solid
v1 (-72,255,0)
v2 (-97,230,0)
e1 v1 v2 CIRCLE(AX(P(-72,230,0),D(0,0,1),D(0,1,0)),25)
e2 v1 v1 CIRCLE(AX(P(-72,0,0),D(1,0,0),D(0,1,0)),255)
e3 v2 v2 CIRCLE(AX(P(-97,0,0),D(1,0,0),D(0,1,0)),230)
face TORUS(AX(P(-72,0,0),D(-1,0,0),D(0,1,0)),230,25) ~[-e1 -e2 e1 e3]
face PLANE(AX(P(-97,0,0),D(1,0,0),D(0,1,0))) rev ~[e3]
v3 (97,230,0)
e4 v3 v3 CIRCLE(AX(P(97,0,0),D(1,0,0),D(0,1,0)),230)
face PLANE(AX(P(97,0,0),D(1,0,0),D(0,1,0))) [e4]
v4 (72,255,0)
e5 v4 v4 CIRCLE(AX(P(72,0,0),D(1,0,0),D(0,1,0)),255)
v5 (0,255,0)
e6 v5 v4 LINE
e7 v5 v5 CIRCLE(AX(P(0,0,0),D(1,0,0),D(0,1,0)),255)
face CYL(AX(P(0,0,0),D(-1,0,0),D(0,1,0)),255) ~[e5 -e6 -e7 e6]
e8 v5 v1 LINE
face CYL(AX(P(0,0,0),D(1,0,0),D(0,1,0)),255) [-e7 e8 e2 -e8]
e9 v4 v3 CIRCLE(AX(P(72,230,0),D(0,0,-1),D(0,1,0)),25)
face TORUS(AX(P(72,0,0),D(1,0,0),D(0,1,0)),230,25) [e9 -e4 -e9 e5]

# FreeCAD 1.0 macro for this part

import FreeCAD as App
import Part
import Sketcher
from FreeCAD import Vector


def edges_at(feature, points):
    """Names of the edges that pass closest to the given points."""
    edges = feature.Shape.Edges
    near = lambda p: min(range(len(edges)), key=lambda i: edges[i].distToShape(Part.Vertex(*p))[0])
    return sorted({f"Edge{near(p) + 1}" for p in points})

doc = App.newDocument("Part")
body = doc.addObject("PartDesign::Body", "Body")

sketch1 = body.newObject("Sketcher::SketchObject", "Sketch")
sketch1.AttachmentSupport = (doc.getObject("YZ_Plane"), [""])
sketch1.MapMode = "FlatFace"
sketch1.addGeometry(Part.Circle(Vector(0, 0, 0), Vector(0, 0, 1), 255), False)
sketch1.addConstraint(Sketcher.Constraint("Coincident", 0, 3, -1, 1))
sketch1.addConstraint(Sketcher.Constraint("Diameter", 0, 510.0))
pad1 = body.newObject("PartDesign::Pad", "Pad")
pad1.Profile = sketch1
pad1.Length = 194
pad1.Midplane = True
doc.recompute()

fillet = body.newObject("PartDesign::Fillet", "Fillet")
fillet.Base = (pad1, edges_at(pad1, [(-97, -255, 0), (97, -255, 0)]))
fillet.Radius = 25

doc.recompute()
